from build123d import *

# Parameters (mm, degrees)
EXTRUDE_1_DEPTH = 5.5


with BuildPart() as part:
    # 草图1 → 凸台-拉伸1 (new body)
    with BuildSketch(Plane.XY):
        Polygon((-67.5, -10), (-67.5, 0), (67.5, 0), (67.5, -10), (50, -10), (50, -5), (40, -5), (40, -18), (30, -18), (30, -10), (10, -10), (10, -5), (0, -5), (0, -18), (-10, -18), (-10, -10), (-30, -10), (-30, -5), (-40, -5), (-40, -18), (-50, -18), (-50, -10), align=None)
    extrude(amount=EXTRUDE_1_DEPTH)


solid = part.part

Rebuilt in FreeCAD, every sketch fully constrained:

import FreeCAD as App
import Part
import Sketcher
from FreeCAD import Vector
Q = App.Units.Quantity


def add_polygon(sketch, points):
    """Adds a closed chain of lines whose ends are joined by coincident constraints."""
    first, n = sketch.GeometryCount, len(points)
    for a, b in zip(points, points[1:] + points[:1]):
        sketch.addGeometry(Part.LineSegment(App.Vector(*a, 0), App.Vector(*b, 0)), False)
    for i in range(n):
        sketch.addConstraint(Sketcher.Constraint("Coincident", first + i, 2, first + (i + 1) % n, 1))

doc = App.newDocument("Part")
body = doc.addObject("PartDesign::Body", "Body")

# Sketch on XY plane
sketch1 = body.newObject("Sketcher::SketchObject", "Sketch")
sketch1.AttachmentSupport = (doc.getObject("XY_Plane"), [""])
sketch1.MapMode = "FlatFace"
add_polygon(sketch1, [(-68, 0), (-68, -10), (-50, -10), (-50, -18), (-40, -18), (-40, -5), (-30, -5), (-30, -10), (-10, -10), (-10, -18), (0, -18), (0, -5), (10, -5), (10, -10), (30, -10), (30, -18), (40, -18), (40, -5), (50, -5), (50, -10), (68, -10), (68, 0)])  # lines 0-21
sketch1.addConstraint(Sketcher.Constraint("Vertical", 0))
sketch1.addConstraint(Sketcher.Constraint("Horizontal", 1))
sketch1.addConstraint(Sketcher.Constraint("Vertical", 2))
sketch1.addConstraint(Sketcher.Constraint("Horizontal", 3))
sketch1.addConstraint(Sketcher.Constraint("Vertical", 4))
sketch1.addConstraint(Sketcher.Constraint("Horizontal", 5))
sketch1.addConstraint(Sketcher.Constraint("Vertical", 6))
sketch1.addConstraint(Sketcher.Constraint("Horizontal", 7))
sketch1.addConstraint(Sketcher.Constraint("Vertical", 8))
sketch1.addConstraint(Sketcher.Constraint("Horizontal", 9))
sketch1.addConstraint(Sketcher.Constraint("Vertical", 10))
sketch1.addConstraint(Sketcher.Constraint("Horizontal", 11))
sketch1.addConstraint(Sketcher.Constraint("Vertical", 12))
sketch1.addConstraint(Sketcher.Constraint("Horizontal", 13))
sketch1.addConstraint(Sketcher.Constraint("Vertical", 14))
sketch1.addConstraint(Sketcher.Constraint("Horizontal", 15))
sketch1.addConstraint(Sketcher.Constraint("Vertical", 16))
sketch1.addConstraint(Sketcher.Constraint("Horizontal", 17))
sketch1.addConstraint(Sketcher.Constraint("Vertical", 18))
sketch1.addConstraint(Sketcher.Constraint("Horizontal", 19))
sketch1.addConstraint(Sketcher.Constraint("Vertical", 20))
sketch1.addConstraint(Sketcher.Constraint("Horizontal", 21))
sketch1.addConstraint(Sketcher.Constraint("Symmetric", 20, 2, 21, 2, -1, 1))
sketch1.addConstraint(Sketcher.Constraint("Symmetric", 7, 2, 12, 2, -2))
sketch1.addConstraint(Sketcher.Constraint("Symmetric", 3, 2, 15, 2, -2))
sketch1.addConstraint(Sketcher.Constraint("Symmetric", 1, 2, 18, 2, -2))
sketch1.addConstraint(Sketcher.Constraint("PointOnObject", 9, 2, -2))
sketch1.addConstraint(Sketcher.Constraint("Horizontal", 1, 2, 6, 2))
sketch1.addConstraint(Sketcher.Constraint("Horizontal", 3, 2, 8, 2))
sketch1.addConstraint(Sketcher.Constraint("Horizontal", 5, 2, 10, 2))
sketch1.addConstraint(Sketcher.Constraint("Horizontal", 11, 2, 16, 2))
sketch1.addConstraint(Sketcher.Constraint("Equal", 3, 5))
sketch1.addConstraint(Sketcher.Constraint("Equal", 5, 9))
sketch1.addConstraint(Sketcher.Constraint("Equal", 7, 13))
sketch1.addConstraint(Sketcher.Constraint("Equal", 17, 0))
sketch1.addConstraint(Sketcher.Constraint("DistanceX", 3, 1, 3, 2, Q("10 mm")))
sketch1.addConstraint(Sketcher.Constraint("DistanceX", 7, 1, 7, 2, Q("20 mm")))
sketch1.addConstraint(Sketcher.Constraint("DistanceX", 21, 2, 21, 1, Q("135 mm")))
sketch1.addConstraint(Sketcher.Constraint("DistanceY", 2, 2, 2, 1, Q("8 mm")))
sketch1.addConstraint(Sketcher.Constraint("DistanceY", 4, 1, 4, 2, Q("13 mm")))
pad1 = body.newObject("PartDesign::Pad", "Pad")
pad1.Profile = sketch1
pad1.Length = 5.5

doc.recompute()
